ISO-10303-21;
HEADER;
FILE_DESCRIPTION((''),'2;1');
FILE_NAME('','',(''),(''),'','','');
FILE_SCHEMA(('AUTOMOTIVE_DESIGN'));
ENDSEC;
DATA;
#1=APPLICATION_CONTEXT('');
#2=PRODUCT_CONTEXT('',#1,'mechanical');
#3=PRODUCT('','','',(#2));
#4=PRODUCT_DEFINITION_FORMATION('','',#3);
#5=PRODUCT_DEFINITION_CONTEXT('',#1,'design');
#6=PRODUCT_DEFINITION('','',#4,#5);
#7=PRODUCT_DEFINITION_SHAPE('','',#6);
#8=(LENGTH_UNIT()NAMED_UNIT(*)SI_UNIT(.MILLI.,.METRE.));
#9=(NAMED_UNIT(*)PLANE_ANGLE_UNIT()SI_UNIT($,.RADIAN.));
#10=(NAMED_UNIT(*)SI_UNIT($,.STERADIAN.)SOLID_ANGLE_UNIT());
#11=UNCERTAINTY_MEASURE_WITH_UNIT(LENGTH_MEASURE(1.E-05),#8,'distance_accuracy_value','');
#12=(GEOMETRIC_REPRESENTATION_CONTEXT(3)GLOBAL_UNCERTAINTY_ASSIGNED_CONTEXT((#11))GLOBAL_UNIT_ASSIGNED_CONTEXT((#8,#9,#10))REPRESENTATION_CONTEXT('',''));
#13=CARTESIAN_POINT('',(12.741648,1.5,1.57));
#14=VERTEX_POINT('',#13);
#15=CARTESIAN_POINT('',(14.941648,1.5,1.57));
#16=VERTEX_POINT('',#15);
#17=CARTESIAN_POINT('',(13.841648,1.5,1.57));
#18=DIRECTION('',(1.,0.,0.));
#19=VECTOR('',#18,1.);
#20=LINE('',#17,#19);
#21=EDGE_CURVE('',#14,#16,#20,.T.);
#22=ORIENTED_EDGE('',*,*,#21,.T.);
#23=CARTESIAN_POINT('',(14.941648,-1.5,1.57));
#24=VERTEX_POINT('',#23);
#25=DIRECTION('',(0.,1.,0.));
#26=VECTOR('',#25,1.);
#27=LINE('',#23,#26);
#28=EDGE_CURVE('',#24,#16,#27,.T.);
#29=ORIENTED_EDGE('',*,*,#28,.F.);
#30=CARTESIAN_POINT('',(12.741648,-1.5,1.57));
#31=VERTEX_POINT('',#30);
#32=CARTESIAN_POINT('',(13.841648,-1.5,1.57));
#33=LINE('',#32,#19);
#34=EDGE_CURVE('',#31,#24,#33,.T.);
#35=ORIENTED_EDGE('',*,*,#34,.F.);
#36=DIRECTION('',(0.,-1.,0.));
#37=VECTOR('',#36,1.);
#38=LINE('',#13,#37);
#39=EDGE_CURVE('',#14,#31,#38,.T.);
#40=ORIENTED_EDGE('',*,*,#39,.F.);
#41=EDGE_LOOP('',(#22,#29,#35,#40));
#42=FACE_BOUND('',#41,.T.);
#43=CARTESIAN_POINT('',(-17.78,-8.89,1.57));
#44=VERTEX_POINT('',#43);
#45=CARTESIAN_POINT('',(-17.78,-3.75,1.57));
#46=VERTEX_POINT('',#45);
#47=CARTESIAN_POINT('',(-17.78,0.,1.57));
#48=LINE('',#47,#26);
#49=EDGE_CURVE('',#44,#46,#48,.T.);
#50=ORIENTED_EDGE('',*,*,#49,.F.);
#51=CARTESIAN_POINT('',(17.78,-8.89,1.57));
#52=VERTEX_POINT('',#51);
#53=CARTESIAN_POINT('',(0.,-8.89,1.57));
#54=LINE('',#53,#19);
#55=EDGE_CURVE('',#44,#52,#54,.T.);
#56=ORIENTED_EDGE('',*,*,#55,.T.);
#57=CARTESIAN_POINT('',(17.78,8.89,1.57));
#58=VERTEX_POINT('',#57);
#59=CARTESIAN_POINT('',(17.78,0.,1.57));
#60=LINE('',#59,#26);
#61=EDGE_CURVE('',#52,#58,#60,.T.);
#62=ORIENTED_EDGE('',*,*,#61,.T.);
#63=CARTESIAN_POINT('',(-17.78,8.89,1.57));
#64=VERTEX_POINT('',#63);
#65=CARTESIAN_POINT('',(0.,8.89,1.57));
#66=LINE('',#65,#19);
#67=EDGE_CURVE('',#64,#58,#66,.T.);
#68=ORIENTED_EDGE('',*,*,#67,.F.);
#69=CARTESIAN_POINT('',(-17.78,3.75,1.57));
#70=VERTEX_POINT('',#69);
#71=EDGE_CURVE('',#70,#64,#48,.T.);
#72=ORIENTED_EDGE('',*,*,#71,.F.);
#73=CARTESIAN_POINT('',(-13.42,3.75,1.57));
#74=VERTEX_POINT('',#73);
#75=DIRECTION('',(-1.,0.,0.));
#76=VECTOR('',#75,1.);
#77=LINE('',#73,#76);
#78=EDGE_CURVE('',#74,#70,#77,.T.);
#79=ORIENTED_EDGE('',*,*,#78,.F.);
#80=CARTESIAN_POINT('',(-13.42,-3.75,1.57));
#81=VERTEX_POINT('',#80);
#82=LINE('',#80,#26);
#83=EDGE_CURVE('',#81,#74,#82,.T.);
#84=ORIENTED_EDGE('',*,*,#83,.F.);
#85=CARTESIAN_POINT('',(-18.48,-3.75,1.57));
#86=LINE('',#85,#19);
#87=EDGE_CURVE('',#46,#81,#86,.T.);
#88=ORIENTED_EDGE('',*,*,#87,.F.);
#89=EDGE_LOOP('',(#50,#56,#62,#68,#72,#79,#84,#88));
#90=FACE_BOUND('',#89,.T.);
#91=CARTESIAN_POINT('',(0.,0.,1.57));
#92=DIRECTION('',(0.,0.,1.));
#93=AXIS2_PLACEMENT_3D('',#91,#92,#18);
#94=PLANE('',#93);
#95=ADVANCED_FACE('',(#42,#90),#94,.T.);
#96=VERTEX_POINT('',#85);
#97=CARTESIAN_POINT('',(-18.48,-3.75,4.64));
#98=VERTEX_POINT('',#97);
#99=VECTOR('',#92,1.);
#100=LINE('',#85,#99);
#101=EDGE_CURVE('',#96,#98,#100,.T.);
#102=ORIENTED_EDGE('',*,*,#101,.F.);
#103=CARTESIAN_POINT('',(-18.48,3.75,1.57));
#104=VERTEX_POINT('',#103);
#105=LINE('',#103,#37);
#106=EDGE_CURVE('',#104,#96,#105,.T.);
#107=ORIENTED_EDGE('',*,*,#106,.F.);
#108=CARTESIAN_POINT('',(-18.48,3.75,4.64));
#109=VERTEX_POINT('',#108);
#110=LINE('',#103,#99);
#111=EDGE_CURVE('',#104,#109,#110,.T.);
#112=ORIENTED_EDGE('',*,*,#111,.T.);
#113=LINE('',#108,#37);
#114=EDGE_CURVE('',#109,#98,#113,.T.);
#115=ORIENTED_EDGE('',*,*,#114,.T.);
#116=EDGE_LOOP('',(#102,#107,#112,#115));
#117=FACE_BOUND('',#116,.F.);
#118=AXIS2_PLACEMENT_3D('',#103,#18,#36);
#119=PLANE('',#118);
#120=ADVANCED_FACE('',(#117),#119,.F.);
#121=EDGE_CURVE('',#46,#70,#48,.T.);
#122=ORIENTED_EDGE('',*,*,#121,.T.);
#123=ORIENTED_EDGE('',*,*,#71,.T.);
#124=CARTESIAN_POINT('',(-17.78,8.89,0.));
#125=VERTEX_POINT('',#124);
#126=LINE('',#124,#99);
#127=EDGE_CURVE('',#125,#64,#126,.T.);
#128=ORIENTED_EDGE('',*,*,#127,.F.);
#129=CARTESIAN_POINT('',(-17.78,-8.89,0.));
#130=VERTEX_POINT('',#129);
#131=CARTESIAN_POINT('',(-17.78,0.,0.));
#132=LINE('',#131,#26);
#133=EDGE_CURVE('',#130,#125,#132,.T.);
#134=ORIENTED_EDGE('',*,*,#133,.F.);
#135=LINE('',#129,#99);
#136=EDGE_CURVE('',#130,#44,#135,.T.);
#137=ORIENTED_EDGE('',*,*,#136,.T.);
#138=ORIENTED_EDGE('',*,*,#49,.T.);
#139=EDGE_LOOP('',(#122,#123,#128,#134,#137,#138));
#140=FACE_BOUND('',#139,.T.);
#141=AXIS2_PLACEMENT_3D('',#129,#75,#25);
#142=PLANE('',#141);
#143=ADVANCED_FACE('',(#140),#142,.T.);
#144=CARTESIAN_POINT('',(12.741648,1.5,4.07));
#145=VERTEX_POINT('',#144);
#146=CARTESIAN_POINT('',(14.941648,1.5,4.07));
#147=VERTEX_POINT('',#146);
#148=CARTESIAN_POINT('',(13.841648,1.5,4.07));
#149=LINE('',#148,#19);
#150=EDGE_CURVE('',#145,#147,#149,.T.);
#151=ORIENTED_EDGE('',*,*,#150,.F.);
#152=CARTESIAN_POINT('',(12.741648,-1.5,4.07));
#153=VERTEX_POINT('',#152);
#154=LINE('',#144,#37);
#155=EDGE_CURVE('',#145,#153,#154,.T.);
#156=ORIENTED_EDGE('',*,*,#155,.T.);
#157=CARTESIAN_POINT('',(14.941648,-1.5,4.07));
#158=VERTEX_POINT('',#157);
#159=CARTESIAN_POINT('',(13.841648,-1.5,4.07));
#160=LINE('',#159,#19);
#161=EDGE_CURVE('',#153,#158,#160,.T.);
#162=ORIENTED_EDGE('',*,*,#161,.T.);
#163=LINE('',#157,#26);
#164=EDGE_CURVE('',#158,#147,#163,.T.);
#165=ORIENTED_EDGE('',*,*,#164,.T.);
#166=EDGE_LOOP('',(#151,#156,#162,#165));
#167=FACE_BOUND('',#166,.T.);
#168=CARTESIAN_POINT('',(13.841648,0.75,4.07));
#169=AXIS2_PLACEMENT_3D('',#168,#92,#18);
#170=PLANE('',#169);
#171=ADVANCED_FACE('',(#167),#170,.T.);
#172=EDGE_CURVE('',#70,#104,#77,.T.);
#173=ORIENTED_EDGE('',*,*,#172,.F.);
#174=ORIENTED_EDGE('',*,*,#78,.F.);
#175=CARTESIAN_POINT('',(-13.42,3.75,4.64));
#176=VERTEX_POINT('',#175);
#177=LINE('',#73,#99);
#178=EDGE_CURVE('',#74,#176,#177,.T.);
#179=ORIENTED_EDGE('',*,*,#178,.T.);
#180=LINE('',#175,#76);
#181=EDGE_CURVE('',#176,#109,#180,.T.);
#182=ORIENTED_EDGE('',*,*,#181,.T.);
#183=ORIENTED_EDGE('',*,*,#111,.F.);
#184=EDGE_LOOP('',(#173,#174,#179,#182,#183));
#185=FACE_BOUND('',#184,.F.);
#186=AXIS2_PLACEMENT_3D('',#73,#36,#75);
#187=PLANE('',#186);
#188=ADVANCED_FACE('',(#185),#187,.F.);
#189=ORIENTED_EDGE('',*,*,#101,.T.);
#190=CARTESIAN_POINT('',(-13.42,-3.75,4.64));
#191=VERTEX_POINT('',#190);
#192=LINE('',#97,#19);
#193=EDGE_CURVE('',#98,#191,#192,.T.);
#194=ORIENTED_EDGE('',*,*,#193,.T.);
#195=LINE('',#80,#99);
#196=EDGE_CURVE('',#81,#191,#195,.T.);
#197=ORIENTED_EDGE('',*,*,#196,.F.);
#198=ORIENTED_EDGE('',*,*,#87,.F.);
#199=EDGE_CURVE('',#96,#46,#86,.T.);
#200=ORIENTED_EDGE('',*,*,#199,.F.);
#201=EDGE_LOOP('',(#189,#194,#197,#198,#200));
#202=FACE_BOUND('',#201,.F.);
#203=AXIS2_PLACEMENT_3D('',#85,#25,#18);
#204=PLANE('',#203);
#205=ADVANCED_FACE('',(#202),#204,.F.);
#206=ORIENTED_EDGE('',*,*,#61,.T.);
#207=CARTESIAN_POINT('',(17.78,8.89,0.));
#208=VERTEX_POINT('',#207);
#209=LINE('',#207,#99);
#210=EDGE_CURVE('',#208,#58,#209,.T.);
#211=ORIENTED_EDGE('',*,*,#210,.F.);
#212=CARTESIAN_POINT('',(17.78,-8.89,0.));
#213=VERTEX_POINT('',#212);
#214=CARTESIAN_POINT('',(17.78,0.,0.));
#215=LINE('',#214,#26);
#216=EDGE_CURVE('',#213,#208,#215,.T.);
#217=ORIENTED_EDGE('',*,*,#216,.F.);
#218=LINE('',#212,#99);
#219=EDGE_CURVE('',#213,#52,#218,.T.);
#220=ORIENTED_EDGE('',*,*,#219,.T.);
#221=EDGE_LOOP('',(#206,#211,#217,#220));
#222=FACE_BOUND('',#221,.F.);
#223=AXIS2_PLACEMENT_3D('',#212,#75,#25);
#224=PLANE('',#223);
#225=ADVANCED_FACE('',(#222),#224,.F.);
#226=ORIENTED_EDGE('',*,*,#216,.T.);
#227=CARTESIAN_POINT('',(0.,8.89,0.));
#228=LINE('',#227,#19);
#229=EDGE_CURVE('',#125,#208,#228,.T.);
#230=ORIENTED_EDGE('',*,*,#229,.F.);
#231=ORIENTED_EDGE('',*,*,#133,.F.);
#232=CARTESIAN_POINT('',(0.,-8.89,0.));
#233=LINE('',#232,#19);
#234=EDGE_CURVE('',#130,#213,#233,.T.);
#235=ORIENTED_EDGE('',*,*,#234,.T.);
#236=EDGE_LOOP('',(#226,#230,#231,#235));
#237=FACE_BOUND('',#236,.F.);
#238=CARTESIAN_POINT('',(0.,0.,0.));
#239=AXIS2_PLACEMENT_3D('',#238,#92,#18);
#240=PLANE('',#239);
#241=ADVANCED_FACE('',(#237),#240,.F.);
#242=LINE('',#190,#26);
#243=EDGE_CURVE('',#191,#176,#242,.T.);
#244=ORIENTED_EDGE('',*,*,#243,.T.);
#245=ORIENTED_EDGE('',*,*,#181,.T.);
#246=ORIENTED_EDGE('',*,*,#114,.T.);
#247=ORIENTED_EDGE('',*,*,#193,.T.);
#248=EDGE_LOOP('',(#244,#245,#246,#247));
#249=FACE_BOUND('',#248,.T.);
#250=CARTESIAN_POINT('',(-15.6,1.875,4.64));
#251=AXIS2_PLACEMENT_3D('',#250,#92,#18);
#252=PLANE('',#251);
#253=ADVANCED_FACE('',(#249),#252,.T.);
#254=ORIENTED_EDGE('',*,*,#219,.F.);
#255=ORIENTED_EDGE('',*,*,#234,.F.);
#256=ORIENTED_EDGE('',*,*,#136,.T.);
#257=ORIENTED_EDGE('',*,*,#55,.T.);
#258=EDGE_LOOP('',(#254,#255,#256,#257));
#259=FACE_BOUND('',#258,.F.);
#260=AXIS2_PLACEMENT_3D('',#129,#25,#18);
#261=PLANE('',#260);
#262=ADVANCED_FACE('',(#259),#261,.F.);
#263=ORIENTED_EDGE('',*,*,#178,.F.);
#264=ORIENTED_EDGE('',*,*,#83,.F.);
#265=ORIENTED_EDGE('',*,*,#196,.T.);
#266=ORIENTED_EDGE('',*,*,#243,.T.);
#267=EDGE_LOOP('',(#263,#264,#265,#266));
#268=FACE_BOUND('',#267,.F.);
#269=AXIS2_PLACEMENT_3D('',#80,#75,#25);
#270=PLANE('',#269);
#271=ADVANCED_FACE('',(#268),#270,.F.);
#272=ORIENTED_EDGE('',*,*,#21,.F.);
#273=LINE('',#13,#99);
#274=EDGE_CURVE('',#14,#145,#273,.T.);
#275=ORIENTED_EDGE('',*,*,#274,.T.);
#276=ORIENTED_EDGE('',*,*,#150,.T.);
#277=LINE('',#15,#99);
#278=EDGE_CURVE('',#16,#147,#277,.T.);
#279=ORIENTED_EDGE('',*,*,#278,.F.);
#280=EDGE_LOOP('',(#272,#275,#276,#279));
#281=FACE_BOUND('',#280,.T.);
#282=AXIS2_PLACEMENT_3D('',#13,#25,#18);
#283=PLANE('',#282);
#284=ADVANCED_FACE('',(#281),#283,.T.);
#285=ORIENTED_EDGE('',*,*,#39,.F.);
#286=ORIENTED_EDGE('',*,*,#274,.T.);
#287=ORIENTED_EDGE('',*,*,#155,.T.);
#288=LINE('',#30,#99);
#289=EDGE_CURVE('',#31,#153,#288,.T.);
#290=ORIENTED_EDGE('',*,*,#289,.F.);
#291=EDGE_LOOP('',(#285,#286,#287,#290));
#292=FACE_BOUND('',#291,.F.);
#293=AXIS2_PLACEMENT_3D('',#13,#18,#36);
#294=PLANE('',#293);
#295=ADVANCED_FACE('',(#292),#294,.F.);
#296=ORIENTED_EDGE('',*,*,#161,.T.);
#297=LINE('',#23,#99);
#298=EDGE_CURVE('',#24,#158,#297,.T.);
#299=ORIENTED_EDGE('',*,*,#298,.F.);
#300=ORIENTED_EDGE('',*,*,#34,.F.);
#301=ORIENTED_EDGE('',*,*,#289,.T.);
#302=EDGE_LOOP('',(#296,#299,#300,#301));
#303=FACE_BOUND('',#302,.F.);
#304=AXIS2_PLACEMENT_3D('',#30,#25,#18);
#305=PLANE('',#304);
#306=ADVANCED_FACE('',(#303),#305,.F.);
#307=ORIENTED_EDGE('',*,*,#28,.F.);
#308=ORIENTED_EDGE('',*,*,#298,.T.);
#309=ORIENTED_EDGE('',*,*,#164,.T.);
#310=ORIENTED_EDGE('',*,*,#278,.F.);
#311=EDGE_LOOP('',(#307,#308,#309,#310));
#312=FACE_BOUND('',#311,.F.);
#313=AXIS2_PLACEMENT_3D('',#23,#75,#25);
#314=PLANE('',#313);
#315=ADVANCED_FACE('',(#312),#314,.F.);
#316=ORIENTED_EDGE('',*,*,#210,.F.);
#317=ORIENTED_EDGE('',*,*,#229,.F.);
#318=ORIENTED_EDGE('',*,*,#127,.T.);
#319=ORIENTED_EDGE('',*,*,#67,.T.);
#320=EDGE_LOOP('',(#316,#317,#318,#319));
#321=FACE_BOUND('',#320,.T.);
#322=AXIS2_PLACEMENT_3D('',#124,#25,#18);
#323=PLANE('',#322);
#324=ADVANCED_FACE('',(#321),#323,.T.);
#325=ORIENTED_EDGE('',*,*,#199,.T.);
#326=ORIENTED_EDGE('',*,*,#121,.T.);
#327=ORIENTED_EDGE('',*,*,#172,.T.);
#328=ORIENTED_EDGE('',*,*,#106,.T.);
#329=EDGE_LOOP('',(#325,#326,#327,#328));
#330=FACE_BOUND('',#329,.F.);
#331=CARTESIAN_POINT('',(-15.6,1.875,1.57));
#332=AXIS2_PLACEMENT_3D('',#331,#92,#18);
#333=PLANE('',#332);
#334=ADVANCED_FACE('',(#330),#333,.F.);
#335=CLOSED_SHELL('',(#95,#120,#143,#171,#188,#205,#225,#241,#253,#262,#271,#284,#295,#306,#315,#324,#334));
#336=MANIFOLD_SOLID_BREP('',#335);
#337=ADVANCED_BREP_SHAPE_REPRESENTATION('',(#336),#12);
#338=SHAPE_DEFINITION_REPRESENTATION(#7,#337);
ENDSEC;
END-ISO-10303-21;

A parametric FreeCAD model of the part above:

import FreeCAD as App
import Part
import Sketcher

V = App.Vector
Q = App.Units.Quantity


def add_polygon(sketch, points):
    """Adds a closed chain of lines whose ends are joined by coincident constraints."""
    first, n = sketch.GeometryCount, len(points)
    for a, b in zip(points, points[1:] + points[:1]):
        sketch.addGeometry(Part.LineSegment(App.Vector(*a, 0), App.Vector(*b, 0)), False)
    for i in range(n):
        sketch.addConstraint(Sketcher.Constraint("Coincident", first + i, 2, first + (i + 1) % n, 1))

doc = App.newDocument("Part")
body = doc.addObject("PartDesign::Body", "Body")

sketch1 = body.newObject("Sketcher::SketchObject", "Sketch")
sketch1.AttachmentSupport = (doc.getObject("XY_Plane"), [""])
sketch1.MapMode = "FlatFace"
add_polygon(sketch1, [(-17.78, 8.89), (-17.78, -8.89), (17.78, -8.89), (17.78, 8.89)])
sketch1.addConstraint([
    Sketcher.Constraint("Vertical", 0),
    Sketcher.Constraint("Horizontal", 1),
    Sketcher.Constraint("Vertical", 2),
    Sketcher.Constraint("Horizontal", 3),
    Sketcher.Constraint("Symmetric", 0, 2, 2, 2, -1, 1),
    Sketcher.Constraint("DistanceX", 1, 1, 1, 2, Q("35.56 mm")),
    Sketcher.Constraint("DistanceY", 0, 2, 0, 1, Q("17.78 mm")),
])
pad1 = body.newObject("PartDesign::Pad", "Pad")
pad1.Profile = sketch1
pad1.Length = 1.57

sketch2 = body.newObject("Sketcher::SketchObject", "Sketch001")
sketch2.AttachmentSupport = (doc.getObject("XY_Plane"), [""])
sketch2.MapMode = "FlatFace"
sketch2.AttachmentOffset = App.Placement(V(0, 0, 1.57), App.Rotation())
add_polygon(sketch2, [(-13.42, 3.75), (-18.48, 3.75), (-18.48, -3.75), (-13.42, -3.75)])
sketch2.addConstraint([
    Sketcher.Constraint("Horizontal", 0),
    Sketcher.Constraint("Vertical", 1),
    Sketcher.Constraint("Horizontal", 2),
    Sketcher.Constraint("Vertical", 3),
    Sketcher.Constraint("DistanceY", 1, 2, 1, 1, Q("7.5 mm")),
    Sketcher.Constraint("DistanceX", 0, 2, 0, 1, Q("5.06 mm")),
    Sketcher.Constraint("DistanceX", 0, 2, -1, 1, Q("18.48 mm")),
    Sketcher.Constraint("DistanceY", -1, 1, 0, 2, Q("3.75 mm")),
])
pad2 = body.newObject("PartDesign::Pad", "Pad001")
pad2.Profile = sketch2
pad2.Length = 3.07

sketch3 = body.newObject("Sketcher::SketchObject", "Sketch002")
sketch3.AttachmentSupport = (doc.getObject("XY_Plane"), [""])
sketch3.MapMode = "FlatFace"
sketch3.AttachmentOffset = App.Placement(V(0, 0, 1.57), App.Rotation())
add_polygon(sketch3, [(12.741648, 1.5), (12.741648, -1.5), (14.941648, -1.5), (14.941648, 1.5)])
sketch3.addConstraint([
    Sketcher.Constraint("Vertical", 0),
    Sketcher.Constraint("Horizontal", 1),
    Sketcher.Constraint("Vertical", 2),
    Sketcher.Constraint("Horizontal", 3),
    Sketcher.Constraint("DistanceY", 0, 2, 0, 1, Q("3 mm")),
    Sketcher.Constraint("DistanceX", 1, 1, 1, 2, Q("2.2 mm")),
    Sketcher.Constraint("DistanceY", 0, 2, -1, 1, Q("1.5 mm")),
    Sketcher.Constraint("DistanceX", -1, 1, 1, 2, Q("14.941648 mm")),
])
pad3 = body.newObject("PartDesign::Pad", "Pad002")
pad3.Profile = sketch3
pad3.Length = 2.5

doc.recompute()
